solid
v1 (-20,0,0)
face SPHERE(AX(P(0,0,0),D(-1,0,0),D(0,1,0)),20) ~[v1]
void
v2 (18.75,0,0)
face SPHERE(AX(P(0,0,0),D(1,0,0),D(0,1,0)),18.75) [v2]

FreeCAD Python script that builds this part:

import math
import FreeCAD as App
import Part
import Sketcher

doc = App.newDocument("Part")
body = doc.addObject("PartDesign::Body", "Body")

sketch1 = body.newObject("Sketcher::SketchObject", "Sketch")
sketch1.AttachmentSupport = (doc.getObject("XY_Plane"), [""])
sketch1.MapMode = "FlatFace"
sketch1.addGeometry(Part.LineSegment(App.Vector(18.75, 0, 0), App.Vector(20, 0, 0)), False)
sketch1.addGeometry(Part.ArcOfCircle(Part.Circle(App.Vector(0, 0, 0), App.Vector(0, 0, 1), 20), math.radians(0), math.radians(180)), False)
sketch1.addGeometry(Part.LineSegment(App.Vector(-20, 0, 0), App.Vector(-18.75, 0, 0)), False)
sketch1.addGeometry(Part.ArcOfCircle(Part.Circle(App.Vector(0, 0, 0), App.Vector(0, 0, 1), 18.75), math.radians(0), math.radians(180)), False)
sketch1.addConstraint(Sketcher.Constraint("Coincident", 0, 2, 1, 1))
sketch1.addConstraint(Sketcher.Constraint("Coincident", 1, 2, 2, 1))
sketch1.addConstraint(Sketcher.Constraint("Coincident", 2, 2, 3, 2))
sketch1.addConstraint(Sketcher.Constraint("Coincident", 3, 1, 0, 1))
sketch1.addConstraint(Sketcher.Constraint("Horizontal", 0))
sketch1.addConstraint(Sketcher.Constraint("Horizontal", 2))
sketch1.addConstraint(Sketcher.Constraint("Coincident", 1, 3, -1, 1))
sketch1.addConstraint(Sketcher.Constraint("Coincident", 3, 3, -1, 1))
sketch1.addConstraint(Sketcher.Constraint("PointOnObject", 0, 2, -1))
sketch1.addConstraint(Sketcher.Constraint("PointOnObject", 1, 2, -1))
sketch1.addConstraint(Sketcher.Constraint("Radius", 1, 20.0))
sketch1.addConstraint(Sketcher.Constraint("Radius", 3, 18.75))
revolution = body.newObject("PartDesign::Revolution", "Revolution")
revolution.Profile = sketch1
revolution.ReferenceAxis = (sketch1, ["H_Axis"])
revolution.Angle = 360

doc.recompute()
